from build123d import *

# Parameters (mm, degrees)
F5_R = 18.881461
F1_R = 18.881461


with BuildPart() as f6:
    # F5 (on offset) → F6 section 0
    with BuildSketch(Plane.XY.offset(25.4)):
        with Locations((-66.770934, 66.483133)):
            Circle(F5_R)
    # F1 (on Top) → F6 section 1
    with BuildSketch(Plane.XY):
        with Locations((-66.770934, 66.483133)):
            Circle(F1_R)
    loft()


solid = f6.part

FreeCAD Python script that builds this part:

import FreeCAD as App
import Part
import Sketcher

V = App.Vector
Q = App.Units.Quantity

doc = App.newDocument("Part")
body = doc.addObject("PartDesign::Body", "Body")

# Sketch on XY plane
sketch1 = body.newObject("Sketcher::SketchObject", "Sketch")
sketch1.AttachmentSupport = (doc.getObject("XY_Plane"), [""])
sketch1.MapMode = "FlatFace"
sketch1.AttachmentOffset = App.Placement(V(0, 0, 25.4), App.Rotation())
sketch1.addGeometry(Part.Circle(V(-67, 66, 0), V(0, 0, 1), 19), False)
sketch1.addConstraint([
    Sketcher.Constraint("Diameter", 0, Q("37.762922 mm")),
    Sketcher.Constraint("DistanceX", 0, 3, -1, 1, Q("66.770934 mm")),
    Sketcher.Constraint("DistanceY", -1, 1, 0, 3, Q("66.483133 mm")),
])

# Sketch on XY plane
sketch2 = body.newObject("Sketcher::SketchObject", "Sketch001")
sketch2.AttachmentSupport = (doc.getObject("XY_Plane"), [""])
sketch2.MapMode = "FlatFace"
sketch2.addGeometry(Part.Circle(V(-67, 66, 0), V(0, 0, 1), 19), False)
sketch2.addConstraint([
    Sketcher.Constraint("Diameter", 0, Q("37.762922 mm")),
    Sketcher.Constraint("DistanceX", 0, 3, -1, 1, Q("66.770934 mm")),
    Sketcher.Constraint("DistanceY", -1, 1, 0, 3, Q("66.483133 mm")),
])

additiveloft = body.newObject("PartDesign::AdditiveLoft", "AdditiveLoft")
additiveloft.Profile = sketch1
additiveloft.Sections = [sketch2]

doc.recompute()
